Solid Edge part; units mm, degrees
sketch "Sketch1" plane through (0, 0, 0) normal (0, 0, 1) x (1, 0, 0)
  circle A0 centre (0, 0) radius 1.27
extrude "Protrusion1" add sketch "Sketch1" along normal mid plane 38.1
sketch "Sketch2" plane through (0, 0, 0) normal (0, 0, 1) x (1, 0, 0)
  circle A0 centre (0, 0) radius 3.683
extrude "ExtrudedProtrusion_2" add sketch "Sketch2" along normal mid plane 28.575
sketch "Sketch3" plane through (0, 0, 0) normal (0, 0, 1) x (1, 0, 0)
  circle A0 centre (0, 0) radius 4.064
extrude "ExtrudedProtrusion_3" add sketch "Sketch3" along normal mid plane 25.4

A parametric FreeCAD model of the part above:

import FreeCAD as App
import Part
import Sketcher
from FreeCAD import Vector
Q = App.Units.Quantity

doc = App.newDocument("Part")
params = doc.addObject("Spreadsheet::Sheet", "Params")
for row, (alias, value) in enumerate([
    ("sketch1_diameter", "0.1 in"),
    ("pad1_length", "1.5 in"),
    ("sketch2_diameter", "0.29 in"),
    ("pad2_length", "1.125 in"),
    ("sketch3_diameter", "0.32 in"),
    ("pad3_length", "1 in"),
], start=1):
    params.set(f"A{row}", alias)
    params.set(f"B{row}", "=" + value)
    params.setAlias(f"B{row}", alias)

body = doc.addObject("PartDesign::Body", "Body")

# Sketch on XY plane
sketch1 = body.newObject("Sketcher::SketchObject", "Sketch")
sketch1.AttachmentSupport = (doc.getObject("XY_Plane"), [""])
sketch1.MapMode = "FlatFace"
sketch1.addGeometry(Part.Circle(Vector(0, 0, 0), Vector(0, 0, 1), 1.3), False)
sketch1.addConstraint([
    Sketcher.Constraint("Coincident", 0, 3, -1, 1),
    Sketcher.Constraint("Diameter", 0, Q("0.1 in")),
])
sketch1.setExpression("Constraints[1]", "Params.sketch1_diameter")
pad1 = body.newObject("PartDesign::Pad", "Pad")
pad1.Profile = sketch1
pad1.setExpression("Length", "Params.pad1_length")
pad1.Midplane = True

# Sketch on XY plane
sketch2 = body.newObject("Sketcher::SketchObject", "Sketch001")
sketch2.AttachmentSupport = (doc.getObject("XY_Plane"), [""])
sketch2.MapMode = "FlatFace"
sketch2.addGeometry(Part.Circle(Vector(0, 0, 0), Vector(0, 0, 1), 3.7), False)
sketch2.addConstraint([
    Sketcher.Constraint("Coincident", 0, 3, -1, 1),
    Sketcher.Constraint("Diameter", 0, Q("0.29 in")),
])
sketch2.setExpression("Constraints[1]", "Params.sketch2_diameter")
pad2 = body.newObject("PartDesign::Pad", "Pad001")
pad2.Profile = sketch2
pad2.setExpression("Length", "Params.pad2_length")
pad2.Midplane = True

# Sketch on XY plane
sketch3 = body.newObject("Sketcher::SketchObject", "Sketch002")
sketch3.AttachmentSupport = (doc.getObject("XY_Plane"), [""])
sketch3.MapMode = "FlatFace"
sketch3.addGeometry(Part.Circle(Vector(0, 0, 0), Vector(0, 0, 1), 4.1), False)
sketch3.addConstraint([
    Sketcher.Constraint("Coincident", 0, 3, -1, 1),
    Sketcher.Constraint("Diameter", 0, Q("0.32 in")),
])
sketch3.setExpression("Constraints[1]", "Params.sketch3_diameter")
pad3 = body.newObject("PartDesign::Pad", "Pad002")
pad3.Profile = sketch3
pad3.setExpression("Length", "Params.pad3_length")
pad3.Midplane = True

doc.recompute()
